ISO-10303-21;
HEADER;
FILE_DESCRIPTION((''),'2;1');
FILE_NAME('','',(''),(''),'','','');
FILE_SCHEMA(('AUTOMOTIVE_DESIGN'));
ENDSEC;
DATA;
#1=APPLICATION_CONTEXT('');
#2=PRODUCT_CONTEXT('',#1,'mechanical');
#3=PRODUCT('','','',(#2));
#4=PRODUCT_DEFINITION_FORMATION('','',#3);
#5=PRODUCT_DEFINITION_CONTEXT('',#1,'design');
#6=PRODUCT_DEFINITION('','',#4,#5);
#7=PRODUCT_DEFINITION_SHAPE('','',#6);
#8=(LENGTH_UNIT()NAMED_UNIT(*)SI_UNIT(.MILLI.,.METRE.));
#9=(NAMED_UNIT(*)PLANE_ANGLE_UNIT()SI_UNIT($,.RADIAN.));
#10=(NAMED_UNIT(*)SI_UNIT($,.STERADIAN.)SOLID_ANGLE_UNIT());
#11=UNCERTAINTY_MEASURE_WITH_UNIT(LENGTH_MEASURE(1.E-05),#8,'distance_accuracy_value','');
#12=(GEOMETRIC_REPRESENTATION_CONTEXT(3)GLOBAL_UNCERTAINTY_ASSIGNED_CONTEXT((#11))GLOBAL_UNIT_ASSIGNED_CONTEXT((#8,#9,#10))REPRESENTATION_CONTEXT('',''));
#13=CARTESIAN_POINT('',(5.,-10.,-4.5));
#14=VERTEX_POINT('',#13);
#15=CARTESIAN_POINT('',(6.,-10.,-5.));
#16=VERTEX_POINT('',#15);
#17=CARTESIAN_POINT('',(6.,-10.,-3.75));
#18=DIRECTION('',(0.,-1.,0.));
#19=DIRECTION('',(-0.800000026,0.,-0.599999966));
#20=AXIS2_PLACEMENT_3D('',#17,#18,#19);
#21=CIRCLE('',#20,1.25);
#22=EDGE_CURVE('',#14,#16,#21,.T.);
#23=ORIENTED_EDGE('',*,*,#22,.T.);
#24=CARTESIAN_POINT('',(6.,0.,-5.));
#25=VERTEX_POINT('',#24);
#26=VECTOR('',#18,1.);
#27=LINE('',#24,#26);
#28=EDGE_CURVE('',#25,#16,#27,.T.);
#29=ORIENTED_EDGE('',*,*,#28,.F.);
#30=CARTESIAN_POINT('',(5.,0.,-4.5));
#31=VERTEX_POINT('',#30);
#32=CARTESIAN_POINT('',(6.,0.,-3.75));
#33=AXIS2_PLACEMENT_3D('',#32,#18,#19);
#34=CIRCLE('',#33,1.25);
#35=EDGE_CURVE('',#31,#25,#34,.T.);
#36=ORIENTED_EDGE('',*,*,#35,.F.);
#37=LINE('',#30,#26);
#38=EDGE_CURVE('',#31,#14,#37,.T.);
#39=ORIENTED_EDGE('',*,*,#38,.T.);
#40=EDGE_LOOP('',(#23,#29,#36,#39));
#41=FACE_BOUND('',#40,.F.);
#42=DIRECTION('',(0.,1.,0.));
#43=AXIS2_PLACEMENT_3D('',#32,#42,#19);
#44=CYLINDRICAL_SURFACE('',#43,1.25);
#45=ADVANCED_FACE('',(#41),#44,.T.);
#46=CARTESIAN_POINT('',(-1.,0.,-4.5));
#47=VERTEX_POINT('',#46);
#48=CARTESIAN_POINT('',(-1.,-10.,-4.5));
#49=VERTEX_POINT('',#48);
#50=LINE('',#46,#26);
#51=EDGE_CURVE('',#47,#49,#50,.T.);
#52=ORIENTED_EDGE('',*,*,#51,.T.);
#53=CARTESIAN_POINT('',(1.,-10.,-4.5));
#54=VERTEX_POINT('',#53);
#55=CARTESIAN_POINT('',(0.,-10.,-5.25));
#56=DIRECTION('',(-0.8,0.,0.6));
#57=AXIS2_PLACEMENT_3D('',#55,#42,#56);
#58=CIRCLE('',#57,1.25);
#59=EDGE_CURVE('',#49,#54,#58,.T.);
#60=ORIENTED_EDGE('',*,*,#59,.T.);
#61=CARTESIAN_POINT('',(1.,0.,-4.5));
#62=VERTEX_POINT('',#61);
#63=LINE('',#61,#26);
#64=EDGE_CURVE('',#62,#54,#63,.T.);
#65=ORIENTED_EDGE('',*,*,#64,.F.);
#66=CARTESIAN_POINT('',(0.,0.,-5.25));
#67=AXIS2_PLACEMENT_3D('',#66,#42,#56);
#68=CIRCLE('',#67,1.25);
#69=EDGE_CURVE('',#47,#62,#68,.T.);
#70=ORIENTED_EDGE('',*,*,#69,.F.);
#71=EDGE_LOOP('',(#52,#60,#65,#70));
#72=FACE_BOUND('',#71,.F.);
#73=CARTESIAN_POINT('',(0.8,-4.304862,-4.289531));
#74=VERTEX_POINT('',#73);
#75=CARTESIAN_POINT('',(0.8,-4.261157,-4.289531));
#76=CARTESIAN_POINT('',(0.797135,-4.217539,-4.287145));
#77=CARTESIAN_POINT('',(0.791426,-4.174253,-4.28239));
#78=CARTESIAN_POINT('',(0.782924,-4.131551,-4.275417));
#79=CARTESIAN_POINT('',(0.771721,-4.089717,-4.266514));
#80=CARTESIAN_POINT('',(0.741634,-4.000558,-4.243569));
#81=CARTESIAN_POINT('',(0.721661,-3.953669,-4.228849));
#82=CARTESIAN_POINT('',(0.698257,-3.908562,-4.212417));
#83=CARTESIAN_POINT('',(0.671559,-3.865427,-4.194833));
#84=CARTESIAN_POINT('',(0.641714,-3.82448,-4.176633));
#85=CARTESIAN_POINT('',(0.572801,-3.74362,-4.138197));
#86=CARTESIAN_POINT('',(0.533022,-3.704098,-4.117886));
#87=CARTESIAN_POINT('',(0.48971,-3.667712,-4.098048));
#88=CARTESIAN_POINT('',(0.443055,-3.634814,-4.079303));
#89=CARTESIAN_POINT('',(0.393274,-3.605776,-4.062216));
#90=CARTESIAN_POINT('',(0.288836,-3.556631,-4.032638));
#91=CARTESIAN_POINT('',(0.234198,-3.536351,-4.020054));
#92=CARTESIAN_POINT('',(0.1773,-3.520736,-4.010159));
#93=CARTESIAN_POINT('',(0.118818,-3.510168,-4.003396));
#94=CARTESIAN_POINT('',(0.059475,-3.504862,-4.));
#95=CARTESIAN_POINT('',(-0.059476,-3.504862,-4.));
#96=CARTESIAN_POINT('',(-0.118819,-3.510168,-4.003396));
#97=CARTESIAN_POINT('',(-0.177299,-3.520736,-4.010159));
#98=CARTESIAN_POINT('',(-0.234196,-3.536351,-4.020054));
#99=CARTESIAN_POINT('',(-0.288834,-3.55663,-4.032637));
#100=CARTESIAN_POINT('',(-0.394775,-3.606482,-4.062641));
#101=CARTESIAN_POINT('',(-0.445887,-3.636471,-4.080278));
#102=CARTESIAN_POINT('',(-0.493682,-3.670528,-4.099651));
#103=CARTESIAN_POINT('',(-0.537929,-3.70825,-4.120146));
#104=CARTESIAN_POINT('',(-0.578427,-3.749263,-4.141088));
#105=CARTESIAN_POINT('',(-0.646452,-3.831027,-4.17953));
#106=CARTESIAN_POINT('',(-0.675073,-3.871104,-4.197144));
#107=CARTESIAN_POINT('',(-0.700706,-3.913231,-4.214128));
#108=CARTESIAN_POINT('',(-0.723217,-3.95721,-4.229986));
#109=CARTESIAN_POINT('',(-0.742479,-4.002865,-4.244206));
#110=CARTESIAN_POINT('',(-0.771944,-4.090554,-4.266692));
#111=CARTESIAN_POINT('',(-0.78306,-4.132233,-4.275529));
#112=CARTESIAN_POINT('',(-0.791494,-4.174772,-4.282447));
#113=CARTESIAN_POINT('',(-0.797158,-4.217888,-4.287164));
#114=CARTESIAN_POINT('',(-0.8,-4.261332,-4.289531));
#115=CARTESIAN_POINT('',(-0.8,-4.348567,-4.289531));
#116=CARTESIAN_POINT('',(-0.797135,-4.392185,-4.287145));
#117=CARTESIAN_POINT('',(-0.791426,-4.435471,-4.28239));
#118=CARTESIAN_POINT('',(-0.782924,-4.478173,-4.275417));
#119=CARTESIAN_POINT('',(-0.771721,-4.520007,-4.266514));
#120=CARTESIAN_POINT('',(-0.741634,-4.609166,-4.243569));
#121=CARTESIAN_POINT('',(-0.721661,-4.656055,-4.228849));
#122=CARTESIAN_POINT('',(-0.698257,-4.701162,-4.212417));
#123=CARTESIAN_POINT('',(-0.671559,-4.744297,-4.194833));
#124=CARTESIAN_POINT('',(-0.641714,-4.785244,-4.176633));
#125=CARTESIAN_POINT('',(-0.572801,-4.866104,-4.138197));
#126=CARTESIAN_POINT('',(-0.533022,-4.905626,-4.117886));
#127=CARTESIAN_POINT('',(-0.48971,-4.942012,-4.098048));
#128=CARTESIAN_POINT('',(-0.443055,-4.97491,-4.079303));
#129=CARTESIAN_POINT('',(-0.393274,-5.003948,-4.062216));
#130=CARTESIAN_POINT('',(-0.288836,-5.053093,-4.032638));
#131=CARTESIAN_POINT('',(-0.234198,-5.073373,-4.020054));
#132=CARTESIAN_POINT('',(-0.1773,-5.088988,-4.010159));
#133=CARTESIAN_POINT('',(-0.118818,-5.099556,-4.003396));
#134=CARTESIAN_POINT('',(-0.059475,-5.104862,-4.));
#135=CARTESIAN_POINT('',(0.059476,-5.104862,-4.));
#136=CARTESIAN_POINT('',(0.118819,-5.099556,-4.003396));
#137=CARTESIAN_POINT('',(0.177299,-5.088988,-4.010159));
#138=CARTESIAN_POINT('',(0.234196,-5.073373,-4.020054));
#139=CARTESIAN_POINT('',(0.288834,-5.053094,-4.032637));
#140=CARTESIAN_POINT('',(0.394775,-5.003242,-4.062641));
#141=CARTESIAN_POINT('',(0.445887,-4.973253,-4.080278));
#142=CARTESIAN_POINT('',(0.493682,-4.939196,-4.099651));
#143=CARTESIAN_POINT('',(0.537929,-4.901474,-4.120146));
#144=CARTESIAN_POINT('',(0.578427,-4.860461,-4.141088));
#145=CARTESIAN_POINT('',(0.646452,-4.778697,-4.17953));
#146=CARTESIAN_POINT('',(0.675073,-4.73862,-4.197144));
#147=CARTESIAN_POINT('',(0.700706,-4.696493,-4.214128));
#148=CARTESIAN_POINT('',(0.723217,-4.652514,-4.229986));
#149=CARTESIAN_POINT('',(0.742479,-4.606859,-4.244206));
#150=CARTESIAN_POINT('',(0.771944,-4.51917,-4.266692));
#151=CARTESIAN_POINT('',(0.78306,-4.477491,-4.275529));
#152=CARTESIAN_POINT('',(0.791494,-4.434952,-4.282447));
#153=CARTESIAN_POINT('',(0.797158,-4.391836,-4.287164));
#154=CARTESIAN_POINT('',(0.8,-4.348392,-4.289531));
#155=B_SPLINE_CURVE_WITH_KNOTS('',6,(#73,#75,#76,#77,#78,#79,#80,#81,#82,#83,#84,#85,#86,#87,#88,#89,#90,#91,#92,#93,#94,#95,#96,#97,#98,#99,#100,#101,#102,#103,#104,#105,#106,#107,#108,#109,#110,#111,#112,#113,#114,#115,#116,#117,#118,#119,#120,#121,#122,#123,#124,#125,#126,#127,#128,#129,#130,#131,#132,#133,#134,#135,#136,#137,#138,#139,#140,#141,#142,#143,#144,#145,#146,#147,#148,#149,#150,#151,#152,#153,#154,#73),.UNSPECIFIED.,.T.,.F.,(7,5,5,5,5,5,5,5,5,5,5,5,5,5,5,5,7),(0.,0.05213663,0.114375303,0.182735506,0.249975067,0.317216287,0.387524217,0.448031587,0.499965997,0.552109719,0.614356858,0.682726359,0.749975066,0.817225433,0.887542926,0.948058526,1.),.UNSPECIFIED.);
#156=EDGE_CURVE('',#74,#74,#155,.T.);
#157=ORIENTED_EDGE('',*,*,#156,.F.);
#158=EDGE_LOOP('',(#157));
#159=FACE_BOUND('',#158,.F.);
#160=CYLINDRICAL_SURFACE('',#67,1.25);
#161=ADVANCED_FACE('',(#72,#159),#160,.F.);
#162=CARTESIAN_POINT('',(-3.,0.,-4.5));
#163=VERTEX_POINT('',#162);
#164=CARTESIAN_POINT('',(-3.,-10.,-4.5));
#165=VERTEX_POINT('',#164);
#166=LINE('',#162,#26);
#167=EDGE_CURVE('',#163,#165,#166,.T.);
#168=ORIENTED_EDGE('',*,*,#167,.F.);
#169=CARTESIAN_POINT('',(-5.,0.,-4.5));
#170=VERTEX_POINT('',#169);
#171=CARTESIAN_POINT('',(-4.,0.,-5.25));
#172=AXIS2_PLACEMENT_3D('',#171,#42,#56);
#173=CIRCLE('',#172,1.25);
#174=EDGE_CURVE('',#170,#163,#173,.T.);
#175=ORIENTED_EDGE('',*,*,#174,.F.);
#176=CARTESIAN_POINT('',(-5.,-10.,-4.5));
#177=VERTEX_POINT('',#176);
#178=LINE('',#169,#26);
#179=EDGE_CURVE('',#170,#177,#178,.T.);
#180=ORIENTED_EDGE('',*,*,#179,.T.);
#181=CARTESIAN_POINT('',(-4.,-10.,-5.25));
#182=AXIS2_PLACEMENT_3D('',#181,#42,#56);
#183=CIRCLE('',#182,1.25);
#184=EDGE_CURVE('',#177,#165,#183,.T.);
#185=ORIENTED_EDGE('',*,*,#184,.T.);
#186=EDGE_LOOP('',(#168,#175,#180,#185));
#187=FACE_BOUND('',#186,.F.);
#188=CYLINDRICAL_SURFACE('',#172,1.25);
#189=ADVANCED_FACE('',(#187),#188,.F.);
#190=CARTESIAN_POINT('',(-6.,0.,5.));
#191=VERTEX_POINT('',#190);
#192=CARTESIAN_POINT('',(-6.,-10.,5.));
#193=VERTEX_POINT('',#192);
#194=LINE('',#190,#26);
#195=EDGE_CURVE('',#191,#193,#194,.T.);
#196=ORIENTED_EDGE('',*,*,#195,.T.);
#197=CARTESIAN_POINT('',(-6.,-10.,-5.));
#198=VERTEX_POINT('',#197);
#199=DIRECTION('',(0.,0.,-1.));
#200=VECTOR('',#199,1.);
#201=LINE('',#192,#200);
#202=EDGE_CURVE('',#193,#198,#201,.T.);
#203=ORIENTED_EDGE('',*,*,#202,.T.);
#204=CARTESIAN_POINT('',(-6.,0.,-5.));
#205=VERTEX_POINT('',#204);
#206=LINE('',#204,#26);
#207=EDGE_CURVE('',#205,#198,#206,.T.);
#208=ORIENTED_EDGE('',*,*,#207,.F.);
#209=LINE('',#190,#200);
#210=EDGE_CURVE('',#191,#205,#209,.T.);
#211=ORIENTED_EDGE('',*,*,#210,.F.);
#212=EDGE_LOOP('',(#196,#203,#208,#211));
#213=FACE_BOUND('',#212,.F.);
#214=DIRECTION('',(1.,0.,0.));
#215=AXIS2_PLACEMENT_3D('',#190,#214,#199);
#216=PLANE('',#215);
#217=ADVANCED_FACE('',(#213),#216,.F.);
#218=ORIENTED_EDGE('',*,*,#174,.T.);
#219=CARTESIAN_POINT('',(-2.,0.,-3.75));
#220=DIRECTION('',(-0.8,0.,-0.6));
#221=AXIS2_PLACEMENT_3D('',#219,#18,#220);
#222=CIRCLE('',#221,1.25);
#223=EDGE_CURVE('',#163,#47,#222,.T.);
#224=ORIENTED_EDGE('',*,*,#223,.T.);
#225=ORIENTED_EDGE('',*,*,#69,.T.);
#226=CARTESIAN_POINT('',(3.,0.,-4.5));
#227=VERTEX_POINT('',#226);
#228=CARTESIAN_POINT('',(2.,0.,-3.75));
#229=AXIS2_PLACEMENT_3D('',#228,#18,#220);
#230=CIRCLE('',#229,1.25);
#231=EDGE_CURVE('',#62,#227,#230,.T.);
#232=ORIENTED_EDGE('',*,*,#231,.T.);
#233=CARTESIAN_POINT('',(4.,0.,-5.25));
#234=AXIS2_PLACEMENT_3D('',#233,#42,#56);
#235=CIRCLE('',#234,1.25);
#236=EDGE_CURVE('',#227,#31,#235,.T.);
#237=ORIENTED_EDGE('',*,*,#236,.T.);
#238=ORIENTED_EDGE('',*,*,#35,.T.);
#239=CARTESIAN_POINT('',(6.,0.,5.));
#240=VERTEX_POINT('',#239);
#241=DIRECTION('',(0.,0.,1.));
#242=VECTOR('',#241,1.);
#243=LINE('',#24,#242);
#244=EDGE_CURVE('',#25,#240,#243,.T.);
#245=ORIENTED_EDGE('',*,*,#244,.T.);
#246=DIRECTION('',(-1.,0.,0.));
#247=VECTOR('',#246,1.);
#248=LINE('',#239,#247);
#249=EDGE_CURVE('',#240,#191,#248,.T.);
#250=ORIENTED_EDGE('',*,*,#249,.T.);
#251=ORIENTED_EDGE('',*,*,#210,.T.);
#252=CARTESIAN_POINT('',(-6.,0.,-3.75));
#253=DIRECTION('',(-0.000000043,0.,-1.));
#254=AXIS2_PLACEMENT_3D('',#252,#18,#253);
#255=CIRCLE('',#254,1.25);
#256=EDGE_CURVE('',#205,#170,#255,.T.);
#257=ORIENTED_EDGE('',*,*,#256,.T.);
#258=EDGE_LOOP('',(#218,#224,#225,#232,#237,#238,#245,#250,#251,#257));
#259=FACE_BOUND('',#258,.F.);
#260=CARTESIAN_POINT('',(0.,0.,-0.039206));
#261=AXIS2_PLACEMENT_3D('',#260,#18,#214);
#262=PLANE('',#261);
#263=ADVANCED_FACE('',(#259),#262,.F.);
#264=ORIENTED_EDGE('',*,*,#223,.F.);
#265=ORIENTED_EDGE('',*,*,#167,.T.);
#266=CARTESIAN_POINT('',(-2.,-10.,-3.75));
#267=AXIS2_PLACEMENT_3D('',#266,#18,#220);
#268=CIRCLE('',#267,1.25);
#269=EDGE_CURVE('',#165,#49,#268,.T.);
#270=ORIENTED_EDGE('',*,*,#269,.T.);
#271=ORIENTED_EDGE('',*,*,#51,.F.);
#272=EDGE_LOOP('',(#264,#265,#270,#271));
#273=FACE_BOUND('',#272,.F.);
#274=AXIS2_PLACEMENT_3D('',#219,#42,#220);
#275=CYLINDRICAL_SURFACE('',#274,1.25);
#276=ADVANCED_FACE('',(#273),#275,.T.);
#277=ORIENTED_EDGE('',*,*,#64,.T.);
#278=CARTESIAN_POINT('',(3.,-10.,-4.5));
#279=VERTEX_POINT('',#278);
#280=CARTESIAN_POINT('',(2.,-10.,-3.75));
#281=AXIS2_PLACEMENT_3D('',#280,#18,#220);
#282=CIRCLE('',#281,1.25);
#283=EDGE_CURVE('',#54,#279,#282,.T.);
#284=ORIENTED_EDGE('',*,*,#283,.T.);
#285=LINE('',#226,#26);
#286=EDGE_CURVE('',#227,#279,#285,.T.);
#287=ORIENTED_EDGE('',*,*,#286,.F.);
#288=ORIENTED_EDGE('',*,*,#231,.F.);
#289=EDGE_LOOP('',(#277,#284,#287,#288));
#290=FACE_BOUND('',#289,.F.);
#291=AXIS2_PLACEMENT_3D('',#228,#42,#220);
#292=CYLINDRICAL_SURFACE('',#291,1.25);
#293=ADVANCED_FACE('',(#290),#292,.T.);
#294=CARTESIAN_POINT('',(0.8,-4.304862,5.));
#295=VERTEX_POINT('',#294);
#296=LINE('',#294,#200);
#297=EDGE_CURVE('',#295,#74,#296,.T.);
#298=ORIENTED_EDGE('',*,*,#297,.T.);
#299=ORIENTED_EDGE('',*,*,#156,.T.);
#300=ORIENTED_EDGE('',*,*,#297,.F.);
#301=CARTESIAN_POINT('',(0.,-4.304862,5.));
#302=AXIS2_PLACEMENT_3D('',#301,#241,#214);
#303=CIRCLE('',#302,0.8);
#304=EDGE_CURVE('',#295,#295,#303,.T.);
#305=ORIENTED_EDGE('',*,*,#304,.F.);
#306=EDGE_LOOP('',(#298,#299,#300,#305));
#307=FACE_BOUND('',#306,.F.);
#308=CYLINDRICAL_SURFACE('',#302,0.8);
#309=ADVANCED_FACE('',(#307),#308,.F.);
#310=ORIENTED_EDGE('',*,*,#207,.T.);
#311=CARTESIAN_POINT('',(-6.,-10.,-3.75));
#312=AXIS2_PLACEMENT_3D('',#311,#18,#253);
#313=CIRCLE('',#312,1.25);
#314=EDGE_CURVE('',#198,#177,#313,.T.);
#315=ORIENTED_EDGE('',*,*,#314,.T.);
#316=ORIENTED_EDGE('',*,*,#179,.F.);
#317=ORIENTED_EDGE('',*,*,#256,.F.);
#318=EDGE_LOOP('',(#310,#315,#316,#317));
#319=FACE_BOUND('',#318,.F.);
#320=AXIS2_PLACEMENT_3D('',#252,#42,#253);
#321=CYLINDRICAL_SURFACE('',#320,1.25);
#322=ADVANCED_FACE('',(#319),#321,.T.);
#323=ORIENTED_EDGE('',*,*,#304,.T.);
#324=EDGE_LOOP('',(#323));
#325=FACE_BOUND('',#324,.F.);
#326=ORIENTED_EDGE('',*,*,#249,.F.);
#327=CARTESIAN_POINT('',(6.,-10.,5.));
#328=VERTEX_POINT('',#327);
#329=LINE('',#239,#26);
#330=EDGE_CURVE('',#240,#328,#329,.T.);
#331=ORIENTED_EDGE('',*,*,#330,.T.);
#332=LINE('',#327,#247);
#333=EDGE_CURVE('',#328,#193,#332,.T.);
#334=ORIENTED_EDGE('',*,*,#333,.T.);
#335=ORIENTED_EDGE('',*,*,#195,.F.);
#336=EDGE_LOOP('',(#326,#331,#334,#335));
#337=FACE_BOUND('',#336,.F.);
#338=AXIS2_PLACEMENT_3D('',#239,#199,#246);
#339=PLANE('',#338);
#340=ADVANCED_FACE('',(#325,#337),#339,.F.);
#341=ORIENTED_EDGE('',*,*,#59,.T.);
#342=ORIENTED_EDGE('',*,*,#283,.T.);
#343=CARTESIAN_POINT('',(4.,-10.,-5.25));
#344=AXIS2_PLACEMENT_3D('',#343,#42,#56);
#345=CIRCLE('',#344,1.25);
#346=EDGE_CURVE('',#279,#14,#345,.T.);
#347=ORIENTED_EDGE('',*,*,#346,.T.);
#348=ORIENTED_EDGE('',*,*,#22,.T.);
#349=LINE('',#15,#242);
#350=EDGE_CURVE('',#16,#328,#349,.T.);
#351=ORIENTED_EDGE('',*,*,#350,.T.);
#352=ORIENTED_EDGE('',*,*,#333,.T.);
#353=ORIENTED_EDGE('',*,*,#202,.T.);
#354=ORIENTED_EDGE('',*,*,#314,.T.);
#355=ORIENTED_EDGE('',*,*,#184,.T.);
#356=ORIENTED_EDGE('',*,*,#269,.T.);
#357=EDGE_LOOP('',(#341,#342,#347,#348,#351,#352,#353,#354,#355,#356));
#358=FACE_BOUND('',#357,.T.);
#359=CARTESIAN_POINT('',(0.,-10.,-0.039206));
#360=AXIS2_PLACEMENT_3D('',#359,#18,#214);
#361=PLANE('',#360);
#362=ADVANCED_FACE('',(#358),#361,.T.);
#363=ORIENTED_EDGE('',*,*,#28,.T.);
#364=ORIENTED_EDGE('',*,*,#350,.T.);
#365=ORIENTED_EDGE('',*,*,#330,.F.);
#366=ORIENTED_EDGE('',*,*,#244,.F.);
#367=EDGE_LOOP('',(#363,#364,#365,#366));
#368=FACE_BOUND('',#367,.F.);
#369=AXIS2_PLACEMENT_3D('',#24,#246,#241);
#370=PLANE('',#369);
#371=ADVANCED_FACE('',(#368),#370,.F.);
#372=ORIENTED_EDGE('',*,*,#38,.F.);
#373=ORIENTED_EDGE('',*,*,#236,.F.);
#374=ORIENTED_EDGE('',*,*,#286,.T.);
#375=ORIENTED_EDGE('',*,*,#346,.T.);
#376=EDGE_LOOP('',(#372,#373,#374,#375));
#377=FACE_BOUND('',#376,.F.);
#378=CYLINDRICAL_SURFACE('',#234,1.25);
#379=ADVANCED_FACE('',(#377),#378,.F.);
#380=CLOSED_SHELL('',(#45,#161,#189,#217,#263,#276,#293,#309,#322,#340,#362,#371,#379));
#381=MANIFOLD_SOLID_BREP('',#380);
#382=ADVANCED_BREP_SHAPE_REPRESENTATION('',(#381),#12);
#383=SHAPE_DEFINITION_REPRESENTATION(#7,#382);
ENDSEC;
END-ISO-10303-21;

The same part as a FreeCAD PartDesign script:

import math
import FreeCAD as App
import Part
import Sketcher
from FreeCAD import Vector
Q = App.Units.Quantity

doc = App.newDocument("Part")
body = doc.addObject("PartDesign::Body", "Body")

# Sketch on XZ plane
sketch1 = doc.addObject("Sketcher::SketchObject", "Sketch")
body.addObject(sketch1)
sketch1.AttachmentSupport = (doc.XZ_Plane, [""])
sketch1.MapMode = "FlatFace"
sketch1.addGeometry([
    Part.ArcOfCircle(Part.Circle(Vector(-4, -5.2, 0), Vector(0, 0, 1), 1.2), math.radians(37), math.radians(143)),  # 0
    Part.ArcOfCircle(Part.Circle(Vector(-2, -3.8, 0), Vector(0, 0, 1), 1.2), math.radians(-143), math.radians(-37)),  # 1
    Part.ArcOfCircle(Part.Circle(Vector(0, -5.2, 0), Vector(0, 0, 1), 1.2), math.radians(37), math.radians(143)),  # 2
    Part.ArcOfCircle(Part.Circle(Vector(2, -3.8, 0), Vector(0, 0, 1), 1.2), math.radians(-143), math.radians(-37)),  # 3
    Part.ArcOfCircle(Part.Circle(Vector(4, -5.2, 0), Vector(0, 0, 1), 1.2), math.radians(37), math.radians(143)),  # 4
    Part.ArcOfCircle(Part.Circle(Vector(6, -3.8, 0), Vector(0, 0, 1), 1.2), math.radians(-143), math.radians(-90)),  # 5
    Part.LineSegment(Vector(6, -5, 0), Vector(6, 5, 0)),  # 6
    Part.LineSegment(Vector(6, 5, 0), Vector(-6, 5, 0)),  # 7
    Part.LineSegment(Vector(-6, 5, 0), Vector(-6, -5, 0)),  # 8
    Part.ArcOfCircle(Part.Circle(Vector(-6, -3.8, 0), Vector(0, 0, 1), 1.2), math.radians(-90), math.radians(-37)),  # 9
], False)
sketch1.addConstraint([
    Sketcher.Constraint("Tangent", 0, 1, 1, 1),
    Sketcher.Constraint("Tangent", 1, 2, 2, 2),
    Sketcher.Constraint("Tangent", 2, 1, 3, 1),
    Sketcher.Constraint("Tangent", 3, 2, 4, 2),
    Sketcher.Constraint("Tangent", 4, 1, 5, 1),
    Sketcher.Constraint("Coincident", 5, 2, 6, 1),
    Sketcher.Constraint("Coincident", 6, 2, 7, 1),
    Sketcher.Constraint("Coincident", 7, 2, 8, 1),
    Sketcher.Constraint("Coincident", 8, 2, 9, 1),
    Sketcher.Constraint("Tangent", 9, 2, 0, 2),
    Sketcher.Constraint("Vertical", 6),
    Sketcher.Constraint("Horizontal", 7),
    Sketcher.Constraint("Vertical", 8),
    Sketcher.Constraint("Equal", 0, 1),
    Sketcher.Constraint("Equal", 1, 2),
    Sketcher.Constraint("Equal", 2, 3),
    Sketcher.Constraint("Equal", 3, 4),
    Sketcher.Constraint("Equal", 4, 5),
    Sketcher.Constraint("Equal", 5, 9),
    Sketcher.Constraint("Symmetric", 5, 2, 7, 2, -1, 1),
    Sketcher.Constraint("Symmetric", 1, 3, 3, 3, -2),
    Sketcher.Constraint("Symmetric", 5, 3, 9, 3, -2),
    Sketcher.Constraint("Horizontal", 0, 3, 2, 3),
    Sketcher.Constraint("Horizontal", 3, 3, 5, 3),
    Sketcher.Constraint("Vertical", 9, 3, 7, 2),
    Sketcher.Constraint("DistanceX", 7, 2, 7, 1, Q("12 mm")),
    Sketcher.Constraint("DistanceY", 6, 1, 6, 2, Q("10 mm")),
    Sketcher.Constraint("Radius", 0, Q("1.25 mm")),
])
pad1 = doc.addObject("PartDesign::Pad", "Pad")
body.addObject(pad1)
pad1.Profile = sketch1
pad1.Length = 10

# Sketch on XY plane
sketch2 = doc.addObject("Sketcher::SketchObject", "Sketch001")
body.addObject(sketch2)
sketch2.AttachmentSupport = (doc.XY_Plane, [""])
sketch2.MapMode = "FlatFace"
sketch2.AttachmentOffset = App.Placement(Vector(0, 0, 5), App.Rotation())
sketch2.addGeometry(Part.Circle(Vector(0, -4.3, 0), Vector(0, 0, 1), 0.8), False)
sketch2.addConstraint([
    Sketcher.Constraint("PointOnObject", 0, 3, -2),
    Sketcher.Constraint("Diameter", 0, Q("1.6 mm")),
    Sketcher.Constraint("DistanceY", 0, 3, -1, 1, Q("4.304862 mm")),
])
pocket1 = doc.addObject("PartDesign::Pocket", "Pocket")
body.addObject(pocket1)
pocket1.Profile = sketch2
pocket1.Length = 25

doc.recompute()
